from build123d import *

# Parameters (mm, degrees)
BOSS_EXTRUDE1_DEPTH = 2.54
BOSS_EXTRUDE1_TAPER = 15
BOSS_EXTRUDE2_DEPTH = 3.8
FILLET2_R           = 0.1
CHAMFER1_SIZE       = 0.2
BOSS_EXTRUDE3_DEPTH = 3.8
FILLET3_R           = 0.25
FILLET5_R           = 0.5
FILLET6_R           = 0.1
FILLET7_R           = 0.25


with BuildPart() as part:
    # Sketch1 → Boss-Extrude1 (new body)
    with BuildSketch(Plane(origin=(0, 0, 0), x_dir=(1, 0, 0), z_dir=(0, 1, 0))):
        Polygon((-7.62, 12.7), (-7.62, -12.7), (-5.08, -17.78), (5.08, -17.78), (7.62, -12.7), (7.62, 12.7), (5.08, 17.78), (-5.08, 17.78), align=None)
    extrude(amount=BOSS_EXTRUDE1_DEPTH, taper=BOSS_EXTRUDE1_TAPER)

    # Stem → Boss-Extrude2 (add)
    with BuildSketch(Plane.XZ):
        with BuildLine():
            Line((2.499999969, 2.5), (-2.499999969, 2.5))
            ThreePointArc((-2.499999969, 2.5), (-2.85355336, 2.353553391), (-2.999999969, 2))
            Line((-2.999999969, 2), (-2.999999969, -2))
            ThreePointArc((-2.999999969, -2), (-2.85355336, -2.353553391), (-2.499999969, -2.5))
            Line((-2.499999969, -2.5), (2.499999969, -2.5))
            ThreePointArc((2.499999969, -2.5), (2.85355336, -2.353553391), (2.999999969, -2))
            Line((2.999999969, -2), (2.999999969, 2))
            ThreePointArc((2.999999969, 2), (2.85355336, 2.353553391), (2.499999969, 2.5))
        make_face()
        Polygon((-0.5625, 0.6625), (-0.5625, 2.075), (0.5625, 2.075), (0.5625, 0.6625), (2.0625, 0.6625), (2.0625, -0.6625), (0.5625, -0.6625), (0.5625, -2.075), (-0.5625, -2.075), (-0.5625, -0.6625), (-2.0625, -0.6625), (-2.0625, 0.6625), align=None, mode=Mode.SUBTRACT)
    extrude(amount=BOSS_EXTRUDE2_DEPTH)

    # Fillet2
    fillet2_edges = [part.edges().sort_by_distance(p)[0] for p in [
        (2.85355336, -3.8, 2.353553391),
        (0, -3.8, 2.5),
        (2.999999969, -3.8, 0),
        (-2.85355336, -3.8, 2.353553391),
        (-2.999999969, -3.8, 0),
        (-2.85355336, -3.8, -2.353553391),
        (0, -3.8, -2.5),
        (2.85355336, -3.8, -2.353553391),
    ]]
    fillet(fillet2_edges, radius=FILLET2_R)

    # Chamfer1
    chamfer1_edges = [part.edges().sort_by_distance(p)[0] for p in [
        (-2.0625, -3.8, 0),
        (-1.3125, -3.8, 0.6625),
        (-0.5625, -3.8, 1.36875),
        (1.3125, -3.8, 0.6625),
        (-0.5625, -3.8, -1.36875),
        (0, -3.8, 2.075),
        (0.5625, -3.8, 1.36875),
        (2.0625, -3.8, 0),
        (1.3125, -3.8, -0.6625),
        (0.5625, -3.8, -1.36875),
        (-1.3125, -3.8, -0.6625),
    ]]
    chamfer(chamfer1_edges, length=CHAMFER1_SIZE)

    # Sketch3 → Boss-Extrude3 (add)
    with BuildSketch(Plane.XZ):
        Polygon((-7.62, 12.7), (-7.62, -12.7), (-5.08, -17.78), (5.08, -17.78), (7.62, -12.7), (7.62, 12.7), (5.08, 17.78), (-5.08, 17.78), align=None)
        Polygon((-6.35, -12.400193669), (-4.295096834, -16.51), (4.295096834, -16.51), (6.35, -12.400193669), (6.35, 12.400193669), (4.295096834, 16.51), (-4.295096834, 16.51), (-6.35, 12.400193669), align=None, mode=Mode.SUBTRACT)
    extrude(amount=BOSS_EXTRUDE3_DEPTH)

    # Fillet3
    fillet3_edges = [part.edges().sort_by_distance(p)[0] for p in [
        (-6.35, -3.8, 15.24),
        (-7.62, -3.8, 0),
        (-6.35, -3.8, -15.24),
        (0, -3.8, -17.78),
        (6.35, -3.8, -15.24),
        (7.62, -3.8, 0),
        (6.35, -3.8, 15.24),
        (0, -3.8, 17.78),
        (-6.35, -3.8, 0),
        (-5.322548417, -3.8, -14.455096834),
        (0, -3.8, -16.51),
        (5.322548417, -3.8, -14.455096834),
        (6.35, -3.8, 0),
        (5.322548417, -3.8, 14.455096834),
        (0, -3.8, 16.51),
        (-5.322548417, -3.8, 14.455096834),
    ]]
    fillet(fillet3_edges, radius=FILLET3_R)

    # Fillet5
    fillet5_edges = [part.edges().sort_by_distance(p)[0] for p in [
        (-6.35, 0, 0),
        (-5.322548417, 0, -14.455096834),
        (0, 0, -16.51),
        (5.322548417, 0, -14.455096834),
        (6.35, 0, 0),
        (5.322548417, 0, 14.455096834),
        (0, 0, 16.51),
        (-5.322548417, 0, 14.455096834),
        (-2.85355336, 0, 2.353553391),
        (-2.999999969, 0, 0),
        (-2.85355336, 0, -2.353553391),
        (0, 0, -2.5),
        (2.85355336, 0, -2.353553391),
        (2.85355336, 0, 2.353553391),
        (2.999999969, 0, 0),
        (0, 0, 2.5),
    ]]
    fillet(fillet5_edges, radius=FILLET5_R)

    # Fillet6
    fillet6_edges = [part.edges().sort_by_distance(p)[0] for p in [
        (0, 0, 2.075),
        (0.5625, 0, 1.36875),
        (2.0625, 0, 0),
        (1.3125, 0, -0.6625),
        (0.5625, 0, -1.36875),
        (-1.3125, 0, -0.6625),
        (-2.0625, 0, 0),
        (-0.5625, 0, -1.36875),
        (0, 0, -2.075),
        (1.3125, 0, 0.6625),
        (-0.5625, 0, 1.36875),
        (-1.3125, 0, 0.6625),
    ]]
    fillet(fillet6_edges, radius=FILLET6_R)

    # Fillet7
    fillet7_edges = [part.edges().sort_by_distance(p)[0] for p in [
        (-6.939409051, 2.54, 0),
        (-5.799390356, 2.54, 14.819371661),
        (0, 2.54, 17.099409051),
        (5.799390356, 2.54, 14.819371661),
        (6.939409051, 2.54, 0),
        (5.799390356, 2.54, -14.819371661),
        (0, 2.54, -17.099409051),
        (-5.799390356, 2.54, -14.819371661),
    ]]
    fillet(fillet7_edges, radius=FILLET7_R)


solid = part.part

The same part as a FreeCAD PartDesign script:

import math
import FreeCAD as App
import Part
import Sketcher

V = App.Vector


def edges_at(feature, points):
    """Names of the edges that pass closest to the given points."""
    edges = feature.Shape.Edges
    near = lambda p: min(range(len(edges)), key=lambda i: edges[i].distToShape(Part.Vertex(*p))[0])
    return sorted({f"Edge{near(p) + 1}" for p in points})

doc = App.newDocument("Part")
body = doc.addObject("PartDesign::Body", "Body")

sketch1 = doc.addObject("Sketcher::SketchObject", "Sketch")
body.addObject(sketch1)
sketch1.AttachmentSupport = (doc.XZ_Plane, [""])
sketch1.MapMode = "FlatFace"
sketch1.addGeometry(Part.LineSegment(V(-8, -13, 0), V(-8, 13, 0)), False)
sketch1.addGeometry(Part.LineSegment(V(-8, 13, 0), V(-5, 18, 0)), False)
sketch1.addGeometry(Part.LineSegment(V(-5, 18, 0), V(5, 18, 0)), False)
sketch1.addGeometry(Part.LineSegment(V(5, 18, 0), V(8, 13, 0)), False)
sketch1.addGeometry(Part.LineSegment(V(8, 13, 0), V(8, -13, 0)), False)
sketch1.addGeometry(Part.LineSegment(V(8, -13, 0), V(5, -18, 0)), False)
sketch1.addGeometry(Part.LineSegment(V(5, -18, 0), V(-5, -18, 0)), False)
sketch1.addGeometry(Part.LineSegment(V(-5, -18, 0), V(-8, -13, 0)), False)
sketch1.addConstraint(Sketcher.Constraint("Coincident", 0, 2, 1, 1))
sketch1.addConstraint(Sketcher.Constraint("Coincident", 1, 2, 2, 1))
sketch1.addConstraint(Sketcher.Constraint("Coincident", 2, 2, 3, 1))
sketch1.addConstraint(Sketcher.Constraint("Coincident", 3, 2, 4, 1))
sketch1.addConstraint(Sketcher.Constraint("Coincident", 4, 2, 5, 1))
sketch1.addConstraint(Sketcher.Constraint("Coincident", 5, 2, 6, 1))
sketch1.addConstraint(Sketcher.Constraint("Coincident", 6, 2, 7, 1))
sketch1.addConstraint(Sketcher.Constraint("Coincident", 7, 2, 0, 1))
sketch1.addConstraint(Sketcher.Constraint("Vertical", 0))
sketch1.addConstraint(Sketcher.Constraint("Horizontal", 2))
sketch1.addConstraint(Sketcher.Constraint("Vertical", 4))
sketch1.addConstraint(Sketcher.Constraint("Horizontal", 6))
sketch1.addConstraint(Sketcher.Constraint("Symmetric", 0, 2, 4, 2, -1, 1))
sketch1.addConstraint(Sketcher.Constraint("Symmetric", 1, 2, 5, 2, -1, 1))
sketch1.addConstraint(Sketcher.Constraint("Parallel", 3, 7))
sketch1.addConstraint(Sketcher.Constraint("Horizontal", 0, 2, 3, 2))
sketch1.addConstraint(Sketcher.Constraint("Horizontal", 4, 2, 7, 2))
sketch1.addConstraint(Sketcher.Constraint("Vertical", 2, 2, 5, 2))
sketch1.addConstraint(Sketcher.Constraint("DistanceY", 0, 1, 0, 2, 25.4))
sketch1.addConstraint(Sketcher.Constraint("DistanceX", 2, 1, 2, 2, 10.16))
sketch1.addConstraint(Sketcher.Constraint("DistanceX", 0, 2, 2, 2, 12.7))
sketch1.addConstraint(Sketcher.Constraint("DistanceY", -1, 1, 1, 2, 17.78))
pad1 = doc.addObject("PartDesign::Pad", "Pad")
body.addObject(pad1)
pad1.Profile = sketch1
pad1.Length = 2.54
pad1.Reversed = True
pad1.TaperAngle = -15

sketch2 = doc.addObject("Sketcher::SketchObject", "Sketch001")
body.addObject(sketch2)
sketch2.AttachmentSupport = (doc.XZ_Plane, [""])
sketch2.MapMode = "FlatFace"
sketch2.addGeometry(Part.LineSegment(V(2.5, 2.5, 0), V(-2.5, 2.5, 0)), False)
sketch2.addGeometry(Part.ArcOfCircle(Part.Circle(V(-2.5, 2, 0), V(0, 0, 1), 0.5), math.radians(90), math.radians(180)), False)
sketch2.addGeometry(Part.LineSegment(V(-3, 2, 0), V(-3, -2, 0)), False)
sketch2.addGeometry(Part.ArcOfCircle(Part.Circle(V(-2.5, -2, 0), V(0, 0, 1), 0.5), math.radians(180), math.radians(270)), False)
sketch2.addGeometry(Part.LineSegment(V(-2.5, -2.5, 0), V(2.5, -2.5, 0)), False)
sketch2.addGeometry(Part.ArcOfCircle(Part.Circle(V(2.5, -2, 0), V(0, 0, 1), 0.5), math.radians(-90), math.radians(0)), False)
sketch2.addGeometry(Part.LineSegment(V(3, -2, 0), V(3, 2, 0)), False)
sketch2.addGeometry(Part.ArcOfCircle(Part.Circle(V(2.5, 2, 0), V(0, 0, 1), 0.5), math.radians(0), math.radians(90)), False)
sketch2.addGeometry(Part.LineSegment(V(-2.06, 0.66, 0), V(-0.56, 0.66, 0)), False)
sketch2.addGeometry(Part.LineSegment(V(-0.56, 0.66, 0), V(-0.56, 2.08, 0)), False)
sketch2.addGeometry(Part.LineSegment(V(-0.56, 2.08, 0), V(0.56, 2.08, 0)), False)
sketch2.addGeometry(Part.LineSegment(V(0.56, 2.08, 0), V(0.56, 0.66, 0)), False)
sketch2.addGeometry(Part.LineSegment(V(0.56, 0.66, 0), V(2.06, 0.66, 0)), False)
sketch2.addGeometry(Part.LineSegment(V(2.06, 0.66, 0), V(2.06, -0.66, 0)), False)
sketch2.addGeometry(Part.LineSegment(V(2.06, -0.66, 0), V(0.56, -0.66, 0)), False)
sketch2.addGeometry(Part.LineSegment(V(0.56, -0.66, 0), V(0.56, -2.08, 0)), False)
sketch2.addGeometry(Part.LineSegment(V(0.56, -2.08, 0), V(-0.56, -2.08, 0)), False)
sketch2.addGeometry(Part.LineSegment(V(-0.56, -2.08, 0), V(-0.56, -0.66, 0)), False)
sketch2.addGeometry(Part.LineSegment(V(-0.56, -0.66, 0), V(-2.06, -0.66, 0)), False)
sketch2.addGeometry(Part.LineSegment(V(-2.06, -0.66, 0), V(-2.06, 0.66, 0)), False)
sketch2.addConstraint(Sketcher.Constraint("Tangent", 0, 2, 1, 1))
sketch2.addConstraint(Sketcher.Constraint("Tangent", 1, 2, 2, 1))
sketch2.addConstraint(Sketcher.Constraint("Tangent", 2, 2, 3, 1))
sketch2.addConstraint(Sketcher.Constraint("Tangent", 3, 2, 4, 1))
sketch2.addConstraint(Sketcher.Constraint("Tangent", 4, 2, 5, 1))
sketch2.addConstraint(Sketcher.Constraint("Tangent", 5, 2, 6, 1))
sketch2.addConstraint(Sketcher.Constraint("Tangent", 6, 2, 7, 1))
sketch2.addConstraint(Sketcher.Constraint("Tangent", 7, 2, 0, 1))
sketch2.addConstraint(Sketcher.Constraint("Coincident", 8, 2, 9, 1))
sketch2.addConstraint(Sketcher.Constraint("Coincident", 9, 2, 10, 1))
sketch2.addConstraint(Sketcher.Constraint("Coincident", 10, 2, 11, 1))
sketch2.addConstraint(Sketcher.Constraint("Coincident", 11, 2, 12, 1))
sketch2.addConstraint(Sketcher.Constraint("Coincident", 12, 2, 13, 1))
sketch2.addConstraint(Sketcher.Constraint("Coincident", 13, 2, 14, 1))
sketch2.addConstraint(Sketcher.Constraint("Coincident", 14, 2, 15, 1))
sketch2.addConstraint(Sketcher.Constraint("Coincident", 15, 2, 16, 1))
sketch2.addConstraint(Sketcher.Constraint("Coincident", 16, 2, 17, 1))
sketch2.addConstraint(Sketcher.Constraint("Coincident", 17, 2, 18, 1))
sketch2.addConstraint(Sketcher.Constraint("Coincident", 18, 2, 19, 1))
sketch2.addConstraint(Sketcher.Constraint("Coincident", 19, 2, 8, 1))
sketch2.addConstraint(Sketcher.Constraint("Horizontal", 0))
sketch2.addConstraint(Sketcher.Constraint("Vertical", 2))
sketch2.addConstraint(Sketcher.Constraint("Horizontal", 4))
sketch2.addConstraint(Sketcher.Constraint("Vertical", 6))
sketch2.addConstraint(Sketcher.Constraint("Horizontal", 8))
sketch2.addConstraint(Sketcher.Constraint("Vertical", 9))
sketch2.addConstraint(Sketcher.Constraint("Horizontal", 10))
sketch2.addConstraint(Sketcher.Constraint("Vertical", 11))
sketch2.addConstraint(Sketcher.Constraint("Horizontal", 12))
sketch2.addConstraint(Sketcher.Constraint("Vertical", 13))
sketch2.addConstraint(Sketcher.Constraint("Horizontal", 14))
sketch2.addConstraint(Sketcher.Constraint("Vertical", 15))
sketch2.addConstraint(Sketcher.Constraint("Horizontal", 16))
sketch2.addConstraint(Sketcher.Constraint("Vertical", 17))
sketch2.addConstraint(Sketcher.Constraint("Horizontal", 18))
sketch2.addConstraint(Sketcher.Constraint("Vertical", 19))
sketch2.addConstraint(Sketcher.Constraint("Equal", 1, 3))
sketch2.addConstraint(Sketcher.Constraint("Equal", 3, 5))
sketch2.addConstraint(Sketcher.Constraint("Equal", 5, 7))
sketch2.addConstraint(Sketcher.Constraint("Symmetric", 1, 3, 5, 3, -1, 1))
sketch2.addConstraint(Sketcher.Constraint("Symmetric", 8, 2, 14, 2, -1, 1))
sketch2.addConstraint(Sketcher.Constraint("Symmetric", 10, 2, 16, 2, -1, 1))
sketch2.addConstraint(Sketcher.Constraint("Symmetric", 12, 2, 18, 2, -1, 1))
sketch2.addConstraint(Sketcher.Constraint("Symmetric", 8, 2, 11, 2, -2))
sketch2.addConstraint(Sketcher.Constraint("Radius", 1, 0.5))
sketch2.addConstraint(Sketcher.Constraint("DistanceX", 0, 2, 0, 1, 5.0))
sketch2.addConstraint(Sketcher.Constraint("DistanceY", 2, 2, 2, 1, 4.0))
sketch2.addConstraint(Sketcher.Constraint("DistanceX", 8, 1, 8, 2, 1.5))
sketch2.addConstraint(Sketcher.Constraint("DistanceX", 10, 1, 10, 2, 1.125))
sketch2.addConstraint(Sketcher.Constraint("DistanceY", 13, 2, 13, 1, 1.325))
sketch2.addConstraint(Sketcher.Constraint("DistanceY", 9, 1, 9, 2, 1.4125))
pad2 = doc.addObject("PartDesign::Pad", "Pad001")
body.addObject(pad2)
pad2.Profile = sketch2
pad2.Length = 3.8
doc.recompute()

fillet = doc.addObject("PartDesign::Fillet", "Fillet")
body.addObject(fillet)
fillet.Base = (pad2, edges_at(pad2, [
    (2.854, -3.8, 2.354),
    (0, -3.8, 2.5),
    (3, -3.8, 0),
    (-2.854, -3.8, 2.354),
    (-3, -3.8, 0),
    (-2.854, -3.8, -2.354),
    (0, -3.8, -2.5),
    (2.854, -3.8, -2.354),
]))
fillet.Radius = 0.1
doc.recompute()

chamfer = doc.addObject("PartDesign::Chamfer", "Chamfer")
body.addObject(chamfer)
chamfer.Base = (fillet, edges_at(fillet, [
    (-2.062, -3.8, 0),
    (-1.312, -3.8, 0.662),
    (-0.562, -3.8, 1.369),
    (1.312, -3.8, 0.662),
    (-0.562, -3.8, -1.369),
    (0, -3.8, 2.075),
    (0.562, -3.8, 1.369),
    (2.062, -3.8, 0),
    (1.312, -3.8, -0.662),
    (0.562, -3.8, -1.369),
    (-1.312, -3.8, -0.662),
]))
chamfer.Size = 0.2

sketch3 = doc.addObject("Sketcher::SketchObject", "Sketch002")
body.addObject(sketch3)
sketch3.AttachmentSupport = (doc.XZ_Plane, [""])
sketch3.MapMode = "FlatFace"
sketch3.addGeometry(Part.LineSegment(V(-7.6, 12.7, 0), V(-7.6, -12.7, 0)), False)
sketch3.addGeometry(Part.LineSegment(V(-7.6, -12.7, 0), V(-5.1, -17.8, 0)), False)
sketch3.addGeometry(Part.LineSegment(V(-5.1, -17.8, 0), V(5.1, -17.8, 0)), False)
sketch3.addGeometry(Part.LineSegment(V(5.1, -17.8, 0), V(7.6, -12.7, 0)), False)
sketch3.addGeometry(Part.LineSegment(V(7.6, -12.7, 0), V(7.6, 12.7, 0)), False)
sketch3.addGeometry(Part.LineSegment(V(7.6, 12.7, 0), V(5.1, 17.8, 0)), False)
sketch3.addGeometry(Part.LineSegment(V(5.1, 17.8, 0), V(-5.1, 17.8, 0)), False)
sketch3.addGeometry(Part.LineSegment(V(-5.1, 17.8, 0), V(-7.6, 12.7, 0)), False)
sketch3.addGeometry(Part.LineSegment(V(-4.3, -16.5, 0), V(-6.3, -12.4, 0)), False)
sketch3.addGeometry(Part.LineSegment(V(-6.3, -12.4, 0), V(-6.3, 12.4, 0)), False)
sketch3.addGeometry(Part.LineSegment(V(-6.3, 12.4, 0), V(-4.3, 16.5, 0)), False)
sketch3.addGeometry(Part.LineSegment(V(-4.3, 16.5, 0), V(4.3, 16.5, 0)), False)
sketch3.addGeometry(Part.LineSegment(V(4.3, 16.5, 0), V(6.3, 12.4, 0)), False)
sketch3.addGeometry(Part.LineSegment(V(6.3, 12.4, 0), V(6.3, -12.4, 0)), False)
sketch3.addGeometry(Part.LineSegment(V(6.3, -12.4, 0), V(4.3, -16.5, 0)), False)
sketch3.addGeometry(Part.LineSegment(V(4.3, -16.5, 0), V(-4.3, -16.5, 0)), False)
sketch3.addConstraint(Sketcher.Constraint("Coincident", 0, 2, 1, 1))
sketch3.addConstraint(Sketcher.Constraint("Coincident", 1, 2, 2, 1))
sketch3.addConstraint(Sketcher.Constraint("Coincident", 2, 2, 3, 1))
sketch3.addConstraint(Sketcher.Constraint("Coincident", 3, 2, 4, 1))
sketch3.addConstraint(Sketcher.Constraint("Coincident", 4, 2, 5, 1))
sketch3.addConstraint(Sketcher.Constraint("Coincident", 5, 2, 6, 1))
sketch3.addConstraint(Sketcher.Constraint("Coincident", 6, 2, 7, 1))
sketch3.addConstraint(Sketcher.Constraint("Coincident", 7, 2, 0, 1))
sketch3.addConstraint(Sketcher.Constraint("Coincident", 8, 2, 9, 1))
sketch3.addConstraint(Sketcher.Constraint("Coincident", 9, 2, 10, 1))
sketch3.addConstraint(Sketcher.Constraint("Coincident", 10, 2, 11, 1))
sketch3.addConstraint(Sketcher.Constraint("Coincident", 11, 2, 12, 1))
sketch3.addConstraint(Sketcher.Constraint("Coincident", 12, 2, 13, 1))
sketch3.addConstraint(Sketcher.Constraint("Coincident", 13, 2, 14, 1))
sketch3.addConstraint(Sketcher.Constraint("Coincident", 14, 2, 15, 1))
sketch3.addConstraint(Sketcher.Constraint("Coincident", 15, 2, 8, 1))
sketch3.addConstraint(Sketcher.Constraint("Vertical", 0))
sketch3.addConstraint(Sketcher.Constraint("Horizontal", 2))
sketch3.addConstraint(Sketcher.Constraint("Vertical", 4))
sketch3.addConstraint(Sketcher.Constraint("Horizontal", 6))
sketch3.addConstraint(Sketcher.Constraint("Vertical", 9))
sketch3.addConstraint(Sketcher.Constraint("Horizontal", 11))
sketch3.addConstraint(Sketcher.Constraint("Vertical", 13))
sketch3.addConstraint(Sketcher.Constraint("Horizontal", 15))
sketch3.addConstraint(Sketcher.Constraint("Symmetric", 0, 2, 4, 2, -1, 1))
sketch3.addConstraint(Sketcher.Constraint("Symmetric", 1, 2, 5, 2, -1, 1))
sketch3.addConstraint(Sketcher.Constraint("Symmetric", 8, 2, 12, 2, -1, 1))
sketch3.addConstraint(Sketcher.Constraint("Symmetric", 10, 2, 14, 2, -1, 1))
sketch3.addConstraint(Sketcher.Constraint("Parallel", 3, 7))
sketch3.addConstraint(Sketcher.Constraint("Parallel", 5, 8))
sketch3.addConstraint(Sketcher.Constraint("Parallel", 7, 10))
sketch3.addConstraint(Sketcher.Constraint("Parallel", 8, 12))
sketch3.addConstraint(Sketcher.Constraint("Parallel", 10, 14))
sketch3.addConstraint(Sketcher.Constraint("Horizontal", 0, 2, 3, 2))
sketch3.addConstraint(Sketcher.Constraint("Horizontal", 4, 2, 7, 2))
sketch3.addConstraint(Sketcher.Constraint("Horizontal", 9, 2, 12, 2))
sketch3.addConstraint(Sketcher.Constraint("Vertical", 2, 2, 5, 2))
sketch3.addConstraint(Sketcher.Constraint("DistanceY", 0, 2, 0, 1, 25.4))
sketch3.addConstraint(Sketcher.Constraint("DistanceX", 2, 1, 2, 2, 10.16))
sketch3.addConstraint(Sketcher.Constraint("DistanceX", 0, 2, 2, 2, 12.7))
sketch3.addConstraint(Sketcher.Constraint("DistanceX", 8, 2, 13, 2, 12.7))
sketch3.addConstraint(Sketcher.Constraint("DistanceY", 1, 2, -1, 1, 17.78))
sketch3.addConstraint(Sketcher.Constraint("DistanceY", -1, 1, 10, 2, 16.51))
sketch3.addConstraint(Sketcher.Constraint("DistanceX", 11, 1, 11, 2, 8.590194))
pad3 = doc.addObject("PartDesign::Pad", "Pad002")
body.addObject(pad3)
pad3.Profile = sketch3
pad3.Length = 3.8
doc.recompute()

fillet2 = doc.addObject("PartDesign::Fillet", "Fillet001")
body.addObject(fillet2)
fillet2.Base = (pad3, edges_at(pad3, [
    (-6.35, -3.8, 15.24),
    (-7.62, -3.8, 0),
    (-6.35, -3.8, -15.24),
    (0, -3.8, -17.78),
    (6.35, -3.8, -15.24),
    (7.62, -3.8, 0),
    (6.35, -3.8, 15.24),
    (0, -3.8, 17.78),
    (-6.35, -3.8, 0),
    (-5.323, -3.8, -14.455),
    (0, -3.8, -16.51),
    (5.323, -3.8, -14.455),
    (6.35, -3.8, 0),
    (5.323, -3.8, 14.455),
    (0, -3.8, 16.51),
    (-5.323, -3.8, 14.455),
]))
fillet2.Radius = 0.25
doc.recompute()

fillet3 = doc.addObject("PartDesign::Fillet", "Fillet002")
body.addObject(fillet3)
fillet3.Base = (fillet2, edges_at(fillet2, [
    (-6.35, 0, 0),
    (-5.323, 0, -14.455),
    (0, 0, -16.51),
    (5.323, 0, -14.455),
    (6.35, 0, 0),
    (5.323, 0, 14.455),
    (0, 0, 16.51),
    (-5.323, 0, 14.455),
    (-2.854, 0, 2.354),
    (-3, 0, 0),
    (-2.854, 0, -2.354),
    (0, 0, -2.5),
    (2.854, 0, -2.354),
    (2.854, 0, 2.354),
    (3, 0, 0),
    (0, 0, 2.5),
]))
fillet3.Radius = 0.5
doc.recompute()

fillet4 = doc.addObject("PartDesign::Fillet", "Fillet003")
body.addObject(fillet4)
fillet4.Base = (fillet3, edges_at(fillet3, [
    (0, 0, 2.075),
    (0.562, 0, 1.369),
    (2.062, 0, 0),
    (1.312, 0, -0.662),
    (0.562, 0, -1.369),
    (-1.312, 0, -0.662),
    (-2.062, 0, 0),
    (-0.562, 0, -1.369),
    (0, 0, -2.075),
    (1.312, 0, 0.662),
    (-0.562, 0, 1.369),
    (-1.312, 0, 0.662),
]))
fillet4.Radius = 0.1
doc.recompute()

fillet5 = doc.addObject("PartDesign::Fillet", "Fillet004")
body.addObject(fillet5)
fillet5.Base = (fillet4, edges_at(fillet4, [
    (-6.939, 2.54, 0),
    (-5.799, 2.54, 14.819),
    (0, 2.54, 17.099),
    (5.799, 2.54, 14.819),
    (6.939, 2.54, 0),
    (5.799, 2.54, -14.819),
    (0, 2.54, -17.099),
    (-5.799, 2.54, -14.819),
]))
fillet5.Radius = 0.25

doc.recompute()
